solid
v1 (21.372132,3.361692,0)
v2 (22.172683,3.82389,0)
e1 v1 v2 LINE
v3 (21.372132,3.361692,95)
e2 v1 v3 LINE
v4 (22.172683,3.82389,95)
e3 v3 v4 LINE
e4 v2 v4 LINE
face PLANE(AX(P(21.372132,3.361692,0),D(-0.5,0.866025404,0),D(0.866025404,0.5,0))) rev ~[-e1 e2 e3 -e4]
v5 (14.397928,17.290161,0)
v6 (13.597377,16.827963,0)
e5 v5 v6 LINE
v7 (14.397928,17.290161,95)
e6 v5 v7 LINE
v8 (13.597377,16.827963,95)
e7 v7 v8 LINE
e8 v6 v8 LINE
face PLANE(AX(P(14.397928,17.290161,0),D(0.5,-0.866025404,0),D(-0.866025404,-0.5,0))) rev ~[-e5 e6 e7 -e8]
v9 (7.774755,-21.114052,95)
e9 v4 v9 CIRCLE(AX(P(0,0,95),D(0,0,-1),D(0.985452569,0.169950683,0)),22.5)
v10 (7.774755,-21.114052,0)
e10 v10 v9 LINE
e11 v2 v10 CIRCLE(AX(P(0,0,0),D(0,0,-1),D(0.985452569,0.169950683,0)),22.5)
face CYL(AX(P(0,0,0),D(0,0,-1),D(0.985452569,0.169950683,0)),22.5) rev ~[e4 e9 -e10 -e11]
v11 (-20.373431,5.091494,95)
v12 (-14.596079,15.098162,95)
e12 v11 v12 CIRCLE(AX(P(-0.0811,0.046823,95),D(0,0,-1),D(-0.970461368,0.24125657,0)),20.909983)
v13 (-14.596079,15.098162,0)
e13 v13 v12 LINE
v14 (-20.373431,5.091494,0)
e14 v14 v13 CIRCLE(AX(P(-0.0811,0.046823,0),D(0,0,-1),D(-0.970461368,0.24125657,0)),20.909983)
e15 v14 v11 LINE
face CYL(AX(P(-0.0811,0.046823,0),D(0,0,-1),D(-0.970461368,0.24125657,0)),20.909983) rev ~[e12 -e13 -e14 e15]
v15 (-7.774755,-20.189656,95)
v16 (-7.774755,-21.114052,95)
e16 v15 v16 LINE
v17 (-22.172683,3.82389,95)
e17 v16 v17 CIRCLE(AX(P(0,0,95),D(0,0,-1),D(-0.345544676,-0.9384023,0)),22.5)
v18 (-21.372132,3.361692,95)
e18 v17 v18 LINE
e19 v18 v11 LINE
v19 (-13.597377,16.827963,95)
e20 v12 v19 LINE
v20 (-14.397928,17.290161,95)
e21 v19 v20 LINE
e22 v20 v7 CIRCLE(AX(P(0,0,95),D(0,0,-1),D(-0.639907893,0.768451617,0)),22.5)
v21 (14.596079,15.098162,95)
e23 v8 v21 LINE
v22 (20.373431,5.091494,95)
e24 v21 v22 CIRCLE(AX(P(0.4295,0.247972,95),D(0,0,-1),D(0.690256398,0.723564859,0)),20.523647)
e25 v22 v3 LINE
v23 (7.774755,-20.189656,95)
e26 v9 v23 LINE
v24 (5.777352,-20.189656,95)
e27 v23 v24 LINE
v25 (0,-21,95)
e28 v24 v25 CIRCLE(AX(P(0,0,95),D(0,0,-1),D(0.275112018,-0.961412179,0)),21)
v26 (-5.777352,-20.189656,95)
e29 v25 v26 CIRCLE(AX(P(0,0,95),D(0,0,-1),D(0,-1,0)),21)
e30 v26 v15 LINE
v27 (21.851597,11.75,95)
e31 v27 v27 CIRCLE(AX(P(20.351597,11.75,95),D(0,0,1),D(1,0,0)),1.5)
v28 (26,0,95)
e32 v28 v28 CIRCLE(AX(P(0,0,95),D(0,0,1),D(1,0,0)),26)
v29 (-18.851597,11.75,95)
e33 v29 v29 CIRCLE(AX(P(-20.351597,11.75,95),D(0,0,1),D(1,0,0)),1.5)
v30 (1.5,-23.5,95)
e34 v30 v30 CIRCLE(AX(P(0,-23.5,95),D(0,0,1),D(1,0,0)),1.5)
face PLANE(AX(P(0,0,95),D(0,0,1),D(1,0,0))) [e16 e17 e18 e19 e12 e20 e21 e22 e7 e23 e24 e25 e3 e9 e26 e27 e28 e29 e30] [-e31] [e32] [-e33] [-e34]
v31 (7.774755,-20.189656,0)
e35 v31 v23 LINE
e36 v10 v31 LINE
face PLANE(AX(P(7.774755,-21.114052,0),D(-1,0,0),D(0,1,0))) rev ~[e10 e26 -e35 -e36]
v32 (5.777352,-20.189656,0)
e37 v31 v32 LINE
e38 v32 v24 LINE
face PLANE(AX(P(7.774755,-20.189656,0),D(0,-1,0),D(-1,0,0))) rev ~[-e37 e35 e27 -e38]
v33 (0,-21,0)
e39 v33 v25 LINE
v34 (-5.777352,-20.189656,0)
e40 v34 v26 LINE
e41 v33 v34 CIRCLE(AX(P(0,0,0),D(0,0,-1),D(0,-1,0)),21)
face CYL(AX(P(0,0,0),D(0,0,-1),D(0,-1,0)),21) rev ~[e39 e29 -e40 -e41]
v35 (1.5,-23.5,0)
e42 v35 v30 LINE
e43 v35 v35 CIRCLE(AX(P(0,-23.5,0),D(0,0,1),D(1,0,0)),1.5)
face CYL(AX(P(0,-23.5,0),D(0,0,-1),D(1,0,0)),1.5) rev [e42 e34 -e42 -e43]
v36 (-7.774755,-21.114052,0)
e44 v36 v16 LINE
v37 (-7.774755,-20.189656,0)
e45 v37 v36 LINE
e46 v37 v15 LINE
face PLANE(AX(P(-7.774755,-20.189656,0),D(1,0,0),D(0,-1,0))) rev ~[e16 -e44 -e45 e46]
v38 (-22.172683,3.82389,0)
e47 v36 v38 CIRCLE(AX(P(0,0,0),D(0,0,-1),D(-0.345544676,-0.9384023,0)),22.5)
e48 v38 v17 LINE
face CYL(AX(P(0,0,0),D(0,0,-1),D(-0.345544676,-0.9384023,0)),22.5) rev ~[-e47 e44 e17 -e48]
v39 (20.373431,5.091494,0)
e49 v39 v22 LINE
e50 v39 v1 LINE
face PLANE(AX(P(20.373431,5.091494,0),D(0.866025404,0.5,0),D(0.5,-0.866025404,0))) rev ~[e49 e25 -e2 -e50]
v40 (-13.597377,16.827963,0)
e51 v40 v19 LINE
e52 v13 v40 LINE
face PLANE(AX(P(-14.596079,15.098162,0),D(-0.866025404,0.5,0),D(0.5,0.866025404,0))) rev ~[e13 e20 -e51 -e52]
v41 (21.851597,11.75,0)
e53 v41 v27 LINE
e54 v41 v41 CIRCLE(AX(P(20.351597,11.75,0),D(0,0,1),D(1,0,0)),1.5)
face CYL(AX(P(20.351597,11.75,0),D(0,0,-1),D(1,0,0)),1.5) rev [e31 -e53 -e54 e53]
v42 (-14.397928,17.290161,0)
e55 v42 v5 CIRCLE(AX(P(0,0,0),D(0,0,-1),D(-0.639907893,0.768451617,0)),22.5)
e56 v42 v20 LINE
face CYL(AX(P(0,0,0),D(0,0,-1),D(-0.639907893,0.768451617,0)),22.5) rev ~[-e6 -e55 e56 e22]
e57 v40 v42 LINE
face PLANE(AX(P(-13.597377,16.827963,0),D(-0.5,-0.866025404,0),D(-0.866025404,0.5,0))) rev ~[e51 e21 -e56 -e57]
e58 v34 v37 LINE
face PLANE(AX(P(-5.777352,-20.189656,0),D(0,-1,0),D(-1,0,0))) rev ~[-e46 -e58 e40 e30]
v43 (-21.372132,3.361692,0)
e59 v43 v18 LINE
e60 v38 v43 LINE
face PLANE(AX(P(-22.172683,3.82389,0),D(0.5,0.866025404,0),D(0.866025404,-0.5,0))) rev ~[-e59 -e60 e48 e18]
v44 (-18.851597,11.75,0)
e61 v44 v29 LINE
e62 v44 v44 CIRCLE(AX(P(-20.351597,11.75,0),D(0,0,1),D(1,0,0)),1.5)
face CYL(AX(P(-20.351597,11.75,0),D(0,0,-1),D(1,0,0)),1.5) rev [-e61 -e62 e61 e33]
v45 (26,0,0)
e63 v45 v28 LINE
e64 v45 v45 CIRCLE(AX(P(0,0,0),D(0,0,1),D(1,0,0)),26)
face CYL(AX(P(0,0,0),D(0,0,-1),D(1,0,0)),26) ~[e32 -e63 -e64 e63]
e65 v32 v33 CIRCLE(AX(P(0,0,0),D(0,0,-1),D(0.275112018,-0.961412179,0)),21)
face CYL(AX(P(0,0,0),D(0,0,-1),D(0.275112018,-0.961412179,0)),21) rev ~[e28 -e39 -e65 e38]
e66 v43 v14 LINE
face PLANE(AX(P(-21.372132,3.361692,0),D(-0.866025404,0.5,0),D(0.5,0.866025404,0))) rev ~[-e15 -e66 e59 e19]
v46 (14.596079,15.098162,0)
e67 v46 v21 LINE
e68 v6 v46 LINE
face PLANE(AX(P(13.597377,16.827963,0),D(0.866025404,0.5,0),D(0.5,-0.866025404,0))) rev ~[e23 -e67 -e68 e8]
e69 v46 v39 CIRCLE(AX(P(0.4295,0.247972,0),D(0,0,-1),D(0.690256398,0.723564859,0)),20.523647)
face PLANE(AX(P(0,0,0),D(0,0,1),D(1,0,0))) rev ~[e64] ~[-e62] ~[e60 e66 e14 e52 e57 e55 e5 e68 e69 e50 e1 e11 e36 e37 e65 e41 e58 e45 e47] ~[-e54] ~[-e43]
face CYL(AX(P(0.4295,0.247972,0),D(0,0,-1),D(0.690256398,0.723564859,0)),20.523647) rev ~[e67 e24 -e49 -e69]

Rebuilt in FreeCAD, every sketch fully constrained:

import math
import FreeCAD as App
import Part
import Sketcher

V = App.Vector
Q = App.Units.Quantity

doc = App.newDocument("Part")
params = doc.addObject("Spreadsheet::Sheet", "Params")
for row, (alias, value) in enumerate([
    ("sketch1_diameter", "52 mm"),
    ("sketch1_diameter2", "3 mm"),
    ("sketch1_diameter3", "3 mm"),
    ("sketch1_diameter4", "3 mm"),
    ("sketch1_radius", "21 mm"),
    ("pad1_length", "95 mm"),
], start=1):
    params.set(f"A{row}", alias)
    params.set(f"B{row}", "=" + value)
    params.setAlias(f"B{row}", alias)

body = doc.addObject("PartDesign::Body", "Body")

# Sketch on XY plane
sketch1 = body.newObject("Sketcher::SketchObject", "Sketch")
sketch1.AttachmentSupport = (doc.getObject("XY_Plane"), [""])
sketch1.MapMode = "FlatFace"
sketch1.addGeometry([
    Part.Circle(V(0, 0, 0), V(0, 0, 1), 26),  # 0
    Part.Circle(V(0, -23.5, 0), V(0, 0, 1), 1.5),  # 1
    Part.Circle(V(-20.351597, 11.75, 0), V(0, 0, 1), 1.5),  # 2
    Part.LineSegment(V(21.372132, 3.361692, 0), V(22.172683, 3.82389, 0)),  # 3
    Part.ArcOfCircle(Part.Circle(V(0, 0, 0), V(0, 0, 1), 22.5), math.radians(-69.784952), math.radians(9.784952)),  # 4
    Part.LineSegment(V(7.774755, -21.114052, 0), V(7.774755, -20.189656, 0)),  # 5
    Part.LineSegment(V(7.774755, -20.189656, 0), V(5.777352, -20.189656, 0)),  # 6
    Part.ArcOfCircle(Part.Circle(V(0, 0, 0), V(0, 0, 1), 21), math.radians(-90), math.radians(-74.03131)),  # 7
    Part.ArcOfCircle(Part.Circle(V(0, 0, 0), V(0, 0, 1), 21), math.radians(-105.96869), math.radians(-90)),  # 8
    Part.LineSegment(V(-5.777352, -20.189656, 0), V(-7.774755, -20.189656, 0)),  # 9
    Part.LineSegment(V(-7.774755, -20.189656, 0), V(-7.774755, -21.114052, 0)),  # 10
    Part.ArcOfCircle(Part.Circle(V(0, 0, 0), V(0, 0, 1), 22.5), math.radians(170.215048), math.radians(249.784952)),  # 11
    Part.LineSegment(V(-22.172683, 3.82389, 0), V(-21.372132, 3.361692, 0)),  # 12
    Part.LineSegment(V(-21.372132, 3.361692, 0), V(-20.373431, 5.091494, 0)),  # 13
    Part.ArcOfCircle(Part.Circle(V(-0.0811, 0.046823, 0), V(0, 0, 1), 20.909983), math.radians(133.960716), math.radians(166.039284)),  # 14
    Part.LineSegment(V(-14.596079, 15.098162, 0), V(-13.597377, 16.827963, 0)),  # 15
    Part.LineSegment(V(-13.597377, 16.827963, 0), V(-14.397928, 17.290161, 0)),  # 16
    Part.ArcOfCircle(Part.Circle(V(0, 0, 0), V(0, 0, 1), 22.5), math.radians(50.215048), math.radians(129.784952)),  # 17
    Part.LineSegment(V(14.397928, 17.290161, 0), V(13.597377, 16.827963, 0)),  # 18
    Part.LineSegment(V(13.597377, 16.827963, 0), V(14.596079, 15.098162, 0)),  # 19
    Part.ArcOfCircle(Part.Circle(V(0.4295, 0.247972, 0), V(0, 0, 1), 20.523647), math.radians(13.650408), math.radians(46.349592)),  # 20
    Part.LineSegment(V(20.373431, 5.091494, 0), V(21.372132, 3.361692, 0)),  # 21
    Part.Circle(V(20.351597, 11.75, 0), V(0, 0, 1), 1.5),  # 22
], False)
sketch1.addConstraint([
    Sketcher.Constraint("Coincident", 3, 2, 4, 2),
    Sketcher.Constraint("Coincident", 4, 1, 5, 1),
    Sketcher.Constraint("Coincident", 5, 2, 6, 1),
    Sketcher.Constraint("Coincident", 6, 2, 7, 2),
    Sketcher.Constraint("Coincident", 7, 1, 8, 2),
    Sketcher.Constraint("Coincident", 8, 1, 9, 1),
    Sketcher.Constraint("Coincident", 9, 2, 10, 1),
    Sketcher.Constraint("Coincident", 10, 2, 11, 2),
    Sketcher.Constraint("Coincident", 11, 1, 12, 1),
    Sketcher.Constraint("Coincident", 12, 2, 13, 1),
    Sketcher.Constraint("Coincident", 13, 2, 14, 2),
    Sketcher.Constraint("Coincident", 14, 1, 15, 1),
    Sketcher.Constraint("Coincident", 15, 2, 16, 1),
    Sketcher.Constraint("Coincident", 16, 2, 17, 2),
    Sketcher.Constraint("Coincident", 17, 1, 18, 1),
    Sketcher.Constraint("Coincident", 18, 2, 19, 1),
    Sketcher.Constraint("Coincident", 19, 2, 20, 2),
    Sketcher.Constraint("Coincident", 20, 1, 21, 1),
    Sketcher.Constraint("Coincident", 21, 2, 3, 1),
    Sketcher.Constraint("Vertical", 5),
    Sketcher.Constraint("Horizontal", 6),
    Sketcher.Constraint("Horizontal", 9),
    Sketcher.Constraint("Vertical", 10),
    Sketcher.Constraint("Coincident", 0, 3, -1, 1),
    Sketcher.Constraint("Coincident", 4, 3, -1, 1),
    Sketcher.Constraint("Coincident", 7, 3, -1, 1),
    Sketcher.Constraint("Coincident", 8, 3, -1, 1),
    Sketcher.Constraint("Coincident", 11, 3, -1, 1),
    Sketcher.Constraint("Coincident", 17, 3, -1, 1),
    Sketcher.Constraint("PointOnObject", 1, 3, -2),
    Sketcher.Constraint("PointOnObject", 7, 1, -2),
    Sketcher.Constraint("Diameter", 0, Q("52 mm")),
    Sketcher.Constraint("Diameter", 1, Q("3 mm")),
    Sketcher.Constraint("Diameter", 2, Q("3 mm")),
    Sketcher.Constraint("Diameter", 22, Q("3 mm")),
    Sketcher.Constraint("Radius", 7, Q("21 mm")),
    Sketcher.Constraint("Radius", 4, Q("22.5 mm")),
    Sketcher.Constraint("Radius", 11, Q("22.5 mm")),
    Sketcher.Constraint("Radius", 17, Q("22.5 mm")),
    Sketcher.Constraint("DistanceY", 1, 3, -1, 1, Q("23.5 mm")),
    Sketcher.Constraint("DistanceY", -1, 1, 2, 3, Q("11.75 mm")),
    Sketcher.Constraint("DistanceY", -1, 1, 22, 3, Q("11.75 mm")),
    Sketcher.Constraint("Radius", 14, Q("20.909983 mm")),
    Sketcher.Constraint("Radius", 20, Q("20.523647 mm")),
    Sketcher.Constraint("DistanceY", 14, 1, 16, 2, Q("2.192 mm")),
    Sketcher.Constraint("DistanceY", 19, 2, 17, 1, Q("2.192 mm")),
    Sketcher.Constraint("DistanceX", 14, 3, -1, 1, Q("0.0811 mm")),
    Sketcher.Constraint("DistanceX", -1, 1, 20, 3, Q("0.4295 mm")),
    Sketcher.Constraint("DistanceY", 12, 2, 11, 1, Q("0.462198 mm")),
    Sketcher.Constraint("DistanceX", 12, 2, 13, 2, Q("0.998701 mm")),
    Sketcher.Constraint("DistanceY", 12, 2, 13, 2, Q("1.729802 mm")),
    Sketcher.Constraint("DistanceX", 14, 1, 15, 2, Q("0.998701 mm")),
    Sketcher.Constraint("DistanceY", 14, 1, 15, 2, Q("1.729802 mm")),
    Sketcher.Constraint("DistanceY", 18, 2, 17, 1, Q("0.462198 mm")),
    Sketcher.Constraint("DistanceX", 18, 2, 19, 2, Q("0.998701 mm")),
    Sketcher.Constraint("DistanceX", 20, 1, 21, 2, Q("0.998701 mm")),
    Sketcher.Constraint("DistanceY", 21, 2, 20, 1, Q("1.729802 mm")),
    Sketcher.Constraint("DistanceX", 6, 2, 6, 1, Q("1.997403 mm")),
    Sketcher.Constraint("DistanceX", 9, 2, 9, 1, Q("1.997403 mm")),
    Sketcher.Constraint("DistanceY", 5, 1, 5, 2, Q("0.924396 mm")),
    Sketcher.Constraint("DistanceY", 10, 2, 10, 1, Q("0.924396 mm")),
    Sketcher.Constraint("DistanceY", -1, 1, 20, 3, Q("0.247972 mm")),
    Sketcher.Constraint("DistanceY", -1, 1, 3, 2, Q("3.82389 mm")),
    Sketcher.Constraint("DistanceY", -1, 1, 11, 1, Q("3.82389 mm")),
    Sketcher.Constraint("DistanceX", 13, 2, -1, 1, Q("20.373431 mm")),
    Sketcher.Constraint("DistanceX", 14, 1, -1, 1, Q("14.596079 mm")),
    Sketcher.Constraint("DistanceY", -1, 1, 17, 1, Q("17.290161 mm")),
    Sketcher.Constraint("DistanceX", -1, 1, 20, 1, Q("20.373431 mm")),
    Sketcher.Constraint("DistanceX", 2, 3, 14, 1, Q("5.755518 mm")),
    Sketcher.Constraint("DistanceX", 17, 1, 22, 3, Q("5.953669 mm")),
])
sketch1.setExpression("Constraints[31]", "Params.sketch1_diameter")
sketch1.setExpression("Constraints[32]", "Params.sketch1_diameter2")
sketch1.setExpression("Constraints[33]", "Params.sketch1_diameter3")
sketch1.setExpression("Constraints[34]", "Params.sketch1_diameter4")
sketch1.setExpression("Constraints[35]", "Params.sketch1_radius")
pad1 = body.newObject("PartDesign::Pad", "Pad")
pad1.Profile = sketch1
pad1.setExpression("Length", "Params.pad1_length")

doc.recompute()
